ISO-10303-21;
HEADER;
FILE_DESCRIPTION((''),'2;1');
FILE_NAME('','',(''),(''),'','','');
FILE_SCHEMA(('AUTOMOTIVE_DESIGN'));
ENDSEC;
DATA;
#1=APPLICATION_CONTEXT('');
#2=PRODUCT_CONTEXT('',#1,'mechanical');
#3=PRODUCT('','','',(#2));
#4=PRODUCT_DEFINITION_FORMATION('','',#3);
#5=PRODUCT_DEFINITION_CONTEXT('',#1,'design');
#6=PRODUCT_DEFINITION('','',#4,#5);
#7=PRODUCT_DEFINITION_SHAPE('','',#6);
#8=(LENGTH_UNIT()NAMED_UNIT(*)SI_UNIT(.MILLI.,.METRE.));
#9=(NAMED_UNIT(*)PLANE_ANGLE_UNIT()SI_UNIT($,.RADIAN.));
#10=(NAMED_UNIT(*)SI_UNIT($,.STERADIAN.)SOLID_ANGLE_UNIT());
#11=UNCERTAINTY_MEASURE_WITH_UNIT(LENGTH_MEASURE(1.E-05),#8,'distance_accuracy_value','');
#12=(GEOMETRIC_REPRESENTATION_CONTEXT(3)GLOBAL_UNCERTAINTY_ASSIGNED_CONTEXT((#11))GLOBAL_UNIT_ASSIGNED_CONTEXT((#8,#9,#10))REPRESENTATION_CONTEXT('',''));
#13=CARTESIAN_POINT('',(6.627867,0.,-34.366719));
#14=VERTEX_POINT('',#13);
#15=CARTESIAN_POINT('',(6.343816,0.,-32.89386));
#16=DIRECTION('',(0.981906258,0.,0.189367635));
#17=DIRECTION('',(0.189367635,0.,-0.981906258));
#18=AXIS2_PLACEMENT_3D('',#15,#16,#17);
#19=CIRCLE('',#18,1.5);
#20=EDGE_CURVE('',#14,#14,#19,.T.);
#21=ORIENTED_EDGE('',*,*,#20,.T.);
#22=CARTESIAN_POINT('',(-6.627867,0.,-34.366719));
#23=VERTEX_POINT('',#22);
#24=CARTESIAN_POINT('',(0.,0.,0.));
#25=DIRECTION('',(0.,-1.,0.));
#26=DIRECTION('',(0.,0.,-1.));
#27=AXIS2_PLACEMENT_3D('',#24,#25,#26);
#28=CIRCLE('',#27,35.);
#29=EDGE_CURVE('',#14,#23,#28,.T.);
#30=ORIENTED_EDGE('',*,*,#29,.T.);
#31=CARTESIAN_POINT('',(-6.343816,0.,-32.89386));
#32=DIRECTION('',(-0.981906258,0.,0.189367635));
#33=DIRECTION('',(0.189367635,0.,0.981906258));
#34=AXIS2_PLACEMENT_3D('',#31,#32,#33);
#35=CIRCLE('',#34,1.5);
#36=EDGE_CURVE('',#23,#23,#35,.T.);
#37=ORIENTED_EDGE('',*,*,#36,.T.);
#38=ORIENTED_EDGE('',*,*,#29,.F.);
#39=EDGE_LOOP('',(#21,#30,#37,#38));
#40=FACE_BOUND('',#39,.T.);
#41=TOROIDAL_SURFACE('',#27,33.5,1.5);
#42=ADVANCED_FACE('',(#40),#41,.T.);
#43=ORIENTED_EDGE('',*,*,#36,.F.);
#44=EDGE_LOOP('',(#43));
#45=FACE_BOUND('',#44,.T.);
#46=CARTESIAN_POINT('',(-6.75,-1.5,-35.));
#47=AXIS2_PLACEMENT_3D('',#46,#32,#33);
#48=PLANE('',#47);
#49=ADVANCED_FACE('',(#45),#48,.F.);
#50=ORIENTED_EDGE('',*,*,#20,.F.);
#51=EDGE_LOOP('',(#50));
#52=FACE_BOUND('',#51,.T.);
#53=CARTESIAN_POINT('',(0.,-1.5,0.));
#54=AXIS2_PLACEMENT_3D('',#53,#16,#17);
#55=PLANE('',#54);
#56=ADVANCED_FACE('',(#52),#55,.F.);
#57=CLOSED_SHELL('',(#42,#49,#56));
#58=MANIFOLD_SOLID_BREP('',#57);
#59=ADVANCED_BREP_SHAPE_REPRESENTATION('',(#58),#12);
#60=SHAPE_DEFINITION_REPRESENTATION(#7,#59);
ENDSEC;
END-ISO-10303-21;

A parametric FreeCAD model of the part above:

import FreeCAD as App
import Part
import Sketcher
from FreeCAD import Vector

doc = App.newDocument("Part")
body = doc.addObject("PartDesign::Body", "Body")

# Sketch on XY plane
sketch1 = doc.addObject("Sketcher::SketchObject", "Sketch")
body.addObject(sketch1)
sketch1.AttachmentSupport = (doc.XY_Plane, [""])
sketch1.MapMode = "FlatFace"
sketch1.addGeometry(Part.Circle(Vector(-33.5, 0, 0), Vector(0, 0, 1), 1.5), False)
sketch1.addConstraint([
    Sketcher.Constraint("PointOnObject", 0, 3, -1),
    Sketcher.Constraint("Diameter", 0, 3.0),
    Sketcher.Constraint("DistanceX", 0, 3, -1, 1, 33.5),
])
revolution = doc.addObject("PartDesign::Revolution", "Revolution")
body.addObject(revolution)
revolution.Profile = sketch1
revolution.ReferenceAxis = (sketch1, ["V_Axis"])
revolution.Angle = 360

# Sketch on XZ plane
sketch2 = doc.addObject("Sketcher::SketchObject", "Sketch001")
body.addObject(sketch2)
sketch2.AttachmentSupport = (doc.XZ_Plane, [""])
sketch2.MapMode = "FlatFace"
sketch2.addGeometry([
    Part.LineSegment(Vector(7, -35, 0), Vector(-7, -35, 0)),
    Part.LineSegment(Vector(-7, -35, 0), Vector(0, 0, 0)),
    Part.LineSegment(Vector(0, 0, 0), Vector(7, -35, 0)),
], False)
sketch2.addConstraint([
    Sketcher.Constraint("Coincident", 0, 2, 1, 1),
    Sketcher.Constraint("Coincident", 1, 2, 2, 1),
    Sketcher.Constraint("Coincident", 2, 2, 0, 1),
    Sketcher.Constraint("Horizontal", 0),
    Sketcher.Constraint("Coincident", 1, 2, -1, 1),
    Sketcher.Constraint("Equal", 1, 2),
    Sketcher.Constraint("DistanceX", 0, 2, 0, 1, 13.5),
    Sketcher.Constraint("DistanceY", 0, 2, -1, 1, 35.0),
])
pocket1 = doc.addObject("PartDesign::Pocket", "Pocket")
body.addObject(pocket1)
pocket1.Profile = sketch2
pocket1.Type = "ThroughAll"
pocket1.Midplane = True

doc.recompute()
